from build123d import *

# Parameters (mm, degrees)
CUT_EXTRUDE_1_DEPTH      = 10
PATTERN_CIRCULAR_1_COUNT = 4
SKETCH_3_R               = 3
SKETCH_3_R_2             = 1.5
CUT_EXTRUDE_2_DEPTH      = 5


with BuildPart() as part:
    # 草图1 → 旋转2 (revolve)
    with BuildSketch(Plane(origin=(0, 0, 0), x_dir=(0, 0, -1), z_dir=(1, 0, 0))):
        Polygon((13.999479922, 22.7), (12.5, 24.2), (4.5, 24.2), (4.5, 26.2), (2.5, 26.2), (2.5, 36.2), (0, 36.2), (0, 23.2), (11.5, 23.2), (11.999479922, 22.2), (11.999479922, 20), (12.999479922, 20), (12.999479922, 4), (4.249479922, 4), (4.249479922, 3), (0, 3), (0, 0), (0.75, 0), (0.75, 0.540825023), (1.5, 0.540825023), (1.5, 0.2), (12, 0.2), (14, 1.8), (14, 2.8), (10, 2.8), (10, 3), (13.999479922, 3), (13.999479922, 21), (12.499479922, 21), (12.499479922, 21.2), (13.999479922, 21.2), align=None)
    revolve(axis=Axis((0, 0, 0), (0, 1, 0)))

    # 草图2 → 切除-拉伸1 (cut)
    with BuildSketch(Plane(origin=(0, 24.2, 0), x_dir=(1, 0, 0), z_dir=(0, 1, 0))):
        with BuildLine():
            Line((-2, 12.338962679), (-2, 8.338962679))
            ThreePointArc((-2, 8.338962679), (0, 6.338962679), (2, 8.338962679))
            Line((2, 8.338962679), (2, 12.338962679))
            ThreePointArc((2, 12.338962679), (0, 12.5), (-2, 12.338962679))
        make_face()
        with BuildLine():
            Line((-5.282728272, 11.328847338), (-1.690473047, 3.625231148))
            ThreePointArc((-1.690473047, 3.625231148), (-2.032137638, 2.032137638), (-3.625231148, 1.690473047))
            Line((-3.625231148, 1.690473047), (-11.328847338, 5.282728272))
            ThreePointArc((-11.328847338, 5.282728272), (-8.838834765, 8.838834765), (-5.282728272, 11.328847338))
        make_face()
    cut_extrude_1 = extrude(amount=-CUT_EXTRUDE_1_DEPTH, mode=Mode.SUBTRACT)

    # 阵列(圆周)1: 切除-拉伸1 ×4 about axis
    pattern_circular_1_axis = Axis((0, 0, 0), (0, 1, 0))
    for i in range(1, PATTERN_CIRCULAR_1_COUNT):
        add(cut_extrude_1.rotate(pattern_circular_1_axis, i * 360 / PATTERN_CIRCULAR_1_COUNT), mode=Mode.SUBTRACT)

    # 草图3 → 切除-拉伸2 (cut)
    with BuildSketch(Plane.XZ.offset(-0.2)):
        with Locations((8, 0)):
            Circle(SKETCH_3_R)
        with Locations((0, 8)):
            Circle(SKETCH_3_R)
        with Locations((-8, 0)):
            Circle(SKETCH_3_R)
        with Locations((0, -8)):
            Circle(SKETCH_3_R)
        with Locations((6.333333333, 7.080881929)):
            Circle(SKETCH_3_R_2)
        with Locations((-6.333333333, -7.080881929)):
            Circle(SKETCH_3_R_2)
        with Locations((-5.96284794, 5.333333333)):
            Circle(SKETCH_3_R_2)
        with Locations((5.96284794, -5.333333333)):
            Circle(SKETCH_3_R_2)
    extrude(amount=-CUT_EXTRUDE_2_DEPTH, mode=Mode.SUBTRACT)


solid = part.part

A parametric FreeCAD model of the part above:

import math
import FreeCAD as App
import Part
import Sketcher
Q = App.Units.Quantity

doc = App.newDocument("Part")
body = doc.addObject("PartDesign::Body", "Body")

sketch1 = body.newObject("Sketcher::SketchObject", "Sketch")
sketch1.AttachmentSupport = (doc.getObject("YZ_Plane"), [""])
sketch1.MapMode = "FlatFace"
sketch1.addGeometry([
    Part.LineSegment(App.Vector(22.7, -13.99948, 0), App.Vector(24.2, -12.5, 0)),
    Part.LineSegment(App.Vector(24.2, -12.5, 0), App.Vector(24.2, -4.5, 0)),
    Part.LineSegment(App.Vector(24.2, -4.5, 0), App.Vector(26.2, -4.5, 0)),
    Part.LineSegment(App.Vector(26.2, -4.5, 0), App.Vector(26.2, -2.5, 0)),
    Part.LineSegment(App.Vector(26.2, -2.5, 0), App.Vector(36.2, -2.5, 0)),
    Part.LineSegment(App.Vector(36.2, -2.5, 0), App.Vector(36.2, 0, 0)),
    Part.LineSegment(App.Vector(36.2, 0, 0), App.Vector(23.2, 0, 0)),
    Part.LineSegment(App.Vector(23.2, 0, 0), App.Vector(23.2, -11.5, 0)),
    Part.LineSegment(App.Vector(23.2, -11.5, 0), App.Vector(22.2, -11.99948, 0)),
    Part.LineSegment(App.Vector(22.2, -11.99948, 0), App.Vector(20, -11.99948, 0)),
    Part.LineSegment(App.Vector(20, -11.99948, 0), App.Vector(20, -12.99948, 0)),
    Part.LineSegment(App.Vector(20, -12.99948, 0), App.Vector(4, -12.99948, 0)),
    Part.LineSegment(App.Vector(4, -12.99948, 0), App.Vector(4, -4.24948, 0)),
    Part.LineSegment(App.Vector(4, -4.24948, 0), App.Vector(3, -4.24948, 0)),
    Part.LineSegment(App.Vector(3, -4.24948, 0), App.Vector(3, 0, 0)),
    Part.LineSegment(App.Vector(3, 0, 0), App.Vector(0, 0, 0)),
    Part.LineSegment(App.Vector(0, 0, 0), App.Vector(0, -0.75, 0)),
    Part.LineSegment(App.Vector(0, -0.75, 0), App.Vector(0.540825, -0.75, 0)),
    Part.LineSegment(App.Vector(0.540825, -0.75, 0), App.Vector(0.540825, -1.5, 0)),
    Part.LineSegment(App.Vector(0.540825, -1.5, 0), App.Vector(0.2, -1.5, 0)),
    Part.LineSegment(App.Vector(0.2, -1.5, 0), App.Vector(0.2, -12, 0)),
    Part.LineSegment(App.Vector(0.2, -12, 0), App.Vector(1.8, -14, 0)),
    Part.LineSegment(App.Vector(1.8, -14, 0), App.Vector(2.8, -14, 0)),
    Part.LineSegment(App.Vector(2.8, -14, 0), App.Vector(2.8, -10, 0)),
    Part.LineSegment(App.Vector(2.8, -10, 0), App.Vector(3, -10, 0)),
    Part.LineSegment(App.Vector(3, -10, 0), App.Vector(3, -13.99948, 0)),
    Part.LineSegment(App.Vector(3, -13.99948, 0), App.Vector(21, -13.99948, 0)),
    Part.LineSegment(App.Vector(21, -13.99948, 0), App.Vector(21, -12.49948, 0)),
    Part.LineSegment(App.Vector(21, -12.49948, 0), App.Vector(21.2, -12.49948, 0)),
    Part.LineSegment(App.Vector(21.2, -12.49948, 0), App.Vector(21.2, -13.99948, 0)),
    Part.LineSegment(App.Vector(21.2, -13.99948, 0), App.Vector(22.7, -13.99948, 0)),
], False)
sketch1.addConstraint([
    Sketcher.Constraint("Coincident", 0, 2, 1, 1),
    Sketcher.Constraint("Coincident", 1, 2, 2, 1),
    Sketcher.Constraint("Coincident", 2, 2, 3, 1),
    Sketcher.Constraint("Coincident", 3, 2, 4, 1),
    Sketcher.Constraint("Coincident", 4, 2, 5, 1),
    Sketcher.Constraint("Coincident", 5, 2, 6, 1),
    Sketcher.Constraint("Coincident", 6, 2, 7, 1),
    Sketcher.Constraint("Coincident", 7, 2, 8, 1),
    Sketcher.Constraint("Coincident", 8, 2, 9, 1),
    Sketcher.Constraint("Coincident", 9, 2, 10, 1),
    Sketcher.Constraint("Coincident", 10, 2, 11, 1),
    Sketcher.Constraint("Coincident", 11, 2, 12, 1),
    Sketcher.Constraint("Coincident", 12, 2, 13, 1),
    Sketcher.Constraint("Coincident", 13, 2, 14, 1),
    Sketcher.Constraint("Coincident", 14, 2, 15, 1),
    Sketcher.Constraint("Coincident", 15, 2, 16, 1),
    Sketcher.Constraint("Coincident", 16, 2, 17, 1),
    Sketcher.Constraint("Coincident", 17, 2, 18, 1),
    Sketcher.Constraint("Coincident", 18, 2, 19, 1),
    Sketcher.Constraint("Coincident", 19, 2, 20, 1),
    Sketcher.Constraint("Coincident", 20, 2, 21, 1),
    Sketcher.Constraint("Coincident", 21, 2, 22, 1),
    Sketcher.Constraint("Coincident", 22, 2, 23, 1),
    Sketcher.Constraint("Coincident", 23, 2, 24, 1),
    Sketcher.Constraint("Coincident", 24, 2, 25, 1),
    Sketcher.Constraint("Coincident", 25, 2, 26, 1),
    Sketcher.Constraint("Coincident", 26, 2, 27, 1),
    Sketcher.Constraint("Coincident", 27, 2, 28, 1),
    Sketcher.Constraint("Coincident", 28, 2, 29, 1),
    Sketcher.Constraint("Coincident", 29, 2, 30, 1),
    Sketcher.Constraint("Coincident", 30, 2, 0, 1),
    Sketcher.Constraint("Vertical", 1),
    Sketcher.Constraint("Horizontal", 2),
    Sketcher.Constraint("Vertical", 3),
    Sketcher.Constraint("Horizontal", 4),
    Sketcher.Constraint("Vertical", 5),
    Sketcher.Constraint("Horizontal", 6),
    Sketcher.Constraint("Vertical", 7),
    Sketcher.Constraint("Horizontal", 9),
    Sketcher.Constraint("Vertical", 10),
    Sketcher.Constraint("Horizontal", 11),
    Sketcher.Constraint("Vertical", 12),
    Sketcher.Constraint("Horizontal", 13),
    Sketcher.Constraint("Vertical", 14),
    Sketcher.Constraint("Horizontal", 15),
    Sketcher.Constraint("Vertical", 16),
    Sketcher.Constraint("Horizontal", 17),
    Sketcher.Constraint("Vertical", 18),
    Sketcher.Constraint("Horizontal", 19),
    Sketcher.Constraint("Vertical", 20),
    Sketcher.Constraint("Horizontal", 22),
    Sketcher.Constraint("Vertical", 23),
    Sketcher.Constraint("Horizontal", 24),
    Sketcher.Constraint("Vertical", 25),
    Sketcher.Constraint("Horizontal", 26),
    Sketcher.Constraint("Vertical", 27),
    Sketcher.Constraint("Horizontal", 28),
    Sketcher.Constraint("Vertical", 29),
    Sketcher.Constraint("Horizontal", 30),
    Sketcher.Constraint("Coincident", 15, 2, -1, 1),
    Sketcher.Constraint("PointOnObject", 5, 2, -1),
    Sketcher.Constraint("Horizontal", 26, 2, 29, 2),
    Sketcher.Constraint("Vertical", 14, 2, 24, 2),
    Sketcher.Constraint("Equal", 13, 22),
    Sketcher.Constraint("Equal", 24, 28),
    Sketcher.Constraint("Equal", 2, 3),
    Sketcher.Constraint("Equal", 22, 10),
    Sketcher.Constraint("Equal", 16, 18),
    Sketcher.Constraint("Equal", 30, 27),
    Sketcher.Constraint("DistanceX", 2, 1, 2, 2, Q("2 mm")),
    Sketcher.Constraint("DistanceX", 4, 1, 4, 2, Q("10 mm")),
    Sketcher.Constraint("DistanceX", 6, 2, 6, 1, Q("13 mm")),
    Sketcher.Constraint("DistanceX", 11, 2, 11, 1, Q("16 mm")),
    Sketcher.Constraint("DistanceX", 13, 2, 13, 1, Q("1 mm")),
    Sketcher.Constraint("DistanceX", 15, 2, 15, 1, Q("3 mm")),
    Sketcher.Constraint("DistanceX", 26, 1, 26, 2, Q("18 mm")),
    Sketcher.Constraint("DistanceY", 1, 1, 1, 2, Q("8 mm")),
    Sketcher.Constraint("DistanceY", 23, 1, 23, 2, Q("4 mm")),
    Sketcher.Constraint("DistanceX", 9, 2, 9, 1, Q("2.2 mm")),
    Sketcher.Constraint("DistanceX", 24, 1, 24, 2, Q("0.2 mm")),
    Sketcher.Constraint("DistanceX", 30, 1, 30, 2, Q("1.5 mm")),
    Sketcher.Constraint("DistanceY", 5, 1, 5, 2, Q("2.5 mm")),
    Sketcher.Constraint("DistanceY", 7, 2, 7, 1, Q("11.5 mm")),
    Sketcher.Constraint("DistanceY", 20, 2, 20, 1, Q("10.5 mm")),
    Sketcher.Constraint("DistanceY", 20, 2, -1, 1, Q("12 mm")),
    Sketcher.Constraint("DistanceY", 21, 2, -1, 1, Q("14 mm")),
    Sketcher.Constraint("DistanceX", 8, 2, 7, 2, Q("1 mm")),
    Sketcher.Constraint("DistanceY", 25, 2, 11, 2, Q("1 mm")),
    Sketcher.Constraint("DistanceY", 12, 1, 12, 2, Q("8.75 mm")),
    Sketcher.Constraint("DistanceX", -1, 1, 19, 2, Q("0.2 mm")),
    Sketcher.Constraint("Distance", 8, Q("1.117801 mm")),
    Sketcher.Constraint("DistanceX", 17, 1, 17, 2, Q("0.540825 mm")),
])
revolution = body.newObject("PartDesign::Revolution", "Revolution")
revolution.Profile = sketch1
revolution.ReferenceAxis = (sketch1, ["H_Axis"])
revolution.Angle = 360

sketch2 = body.newObject("Sketcher::SketchObject", "Sketch001")
sketch2.AttachmentSupport = (doc.getObject("XZ_Plane"), [""])
sketch2.MapMode = "FlatFace"
sketch2.AttachmentOffset = App.Placement(App.Vector(0, 0, -24.2), App.Rotation())
sketch2.addGeometry([
    Part.LineSegment(App.Vector(-2, -12.338963, 0), App.Vector(-2, -8.338963, 0)),
    Part.ArcOfCircle(Part.Circle(App.Vector(0, -8.338963, 0), App.Vector(0, 0, 1), 2), math.radians(0), math.radians(180)),
    Part.LineSegment(App.Vector(2, -8.338963, 0), App.Vector(2, -12.338963, 0)),
    Part.ArcOfCircle(Part.Circle(App.Vector(0, 0, 0), App.Vector(0, 0, 1), 12.5), math.radians(-99.206896), math.radians(-80.793104)),
    Part.LineSegment(App.Vector(-1.690473, -3.625231, 0), App.Vector(-5.282728, -11.328847, 0)),
    Part.ArcOfCircle(Part.Circle(App.Vector(0, 0, 0), App.Vector(0, 0, 1), 12.5), math.radians(-155), math.radians(-115)),
    Part.LineSegment(App.Vector(-11.328847, -5.282728, 0), App.Vector(-3.625231, -1.690473, 0)),
    Part.ArcOfCircle(Part.Circle(App.Vector(-3.092798, -3.092798, 0), App.Vector(0, 0, 1), 1.5), math.radians(-20.790721), math.radians(110.790721)),
], False)
sketch2.addConstraint([
    Sketcher.Constraint("Tangent", 0, 2, 1, 2),
    Sketcher.Constraint("Tangent", 1, 1, 2, 1),
    Sketcher.Constraint("Coincident", 2, 2, 3, 2),
    Sketcher.Constraint("Coincident", 3, 1, 0, 1),
    Sketcher.Constraint("Coincident", 4, 2, 5, 2),
    Sketcher.Constraint("Coincident", 5, 1, 6, 1),
    Sketcher.Constraint("Coincident", 6, 2, 7, 2),
    Sketcher.Constraint("Coincident", 7, 1, 4, 1),
    Sketcher.Constraint("Vertical", 0),
    Sketcher.Constraint("Vertical", 2),
    Sketcher.Constraint("Coincident", 3, 3, -1, 1),
    Sketcher.Constraint("Coincident", 5, 3, -1, 1),
    Sketcher.Constraint("Equal", 3, 5),
    Sketcher.Constraint("PointOnObject", 1, 3, -2),
    Sketcher.Constraint("Equal", 4, 6),
    Sketcher.Constraint("Radius", 1, Q("2 mm")),
    Sketcher.Constraint("Radius", 3, Q("12.5 mm")),
    Sketcher.Constraint("Radius", 7, Q("1.5 mm")),
    Sketcher.Constraint("DistanceY", 0, 1, 0, 2, Q("4 mm")),
    Sketcher.Constraint("Angle", 4, Q("-115 deg")),
    Sketcher.Constraint("Angle", 6, Q("25 deg")),
    Sketcher.Constraint("Distance", 4, Q("8.5 mm")),
    Sketcher.Constraint("DistanceX", 4, 2, -1, 1, Q("5.282728 mm")),
    Sketcher.Constraint("DistanceY", 5, 1, -1, 1, Q("5.282728 mm")),
])
pocket1 = body.newObject("PartDesign::Pocket", "Pocket")
pocket1.Profile = sketch2
pocket1.Length = 10
pocket1.Reversed = True
doc.recompute()

polarpattern = body.newObject("PartDesign::PolarPattern", "PolarPattern")
polarpattern.Originals = [pocket1]
polarpattern.Axis = (doc.getObject("Y_Axis"), [""])
polarpattern.Angle = 360
polarpattern.Occurrences = 4
body.Tip = polarpattern

sketch3 = body.newObject("Sketcher::SketchObject", "Sketch002")
sketch3.AttachmentSupport = (doc.getObject("XZ_Plane"), [""])
sketch3.MapMode = "FlatFace"
sketch3.AttachmentOffset = App.Placement(App.Vector(0, 0, -0.2), App.Rotation())
sketch3.addGeometry([
    Part.Circle(App.Vector(8, 0, 0), App.Vector(0, 0, 1), 3),
    Part.Circle(App.Vector(0, 8, 0), App.Vector(0, 0, 1), 3),
    Part.Circle(App.Vector(-8, 0, 0), App.Vector(0, 0, 1), 3),
    Part.Circle(App.Vector(0, -8, 0), App.Vector(0, 0, 1), 3),
    Part.Circle(App.Vector(6.333333, 7.080882, 0), App.Vector(0, 0, 1), 1.5),
    Part.Circle(App.Vector(-6.333333, -7.080882, 0), App.Vector(0, 0, 1), 1.5),
    Part.Circle(App.Vector(-5.962848, 5.333333, 0), App.Vector(0, 0, 1), 1.5),
    Part.Circle(App.Vector(5.962848, -5.333333, 0), App.Vector(0, 0, 1), 1.5),
], False)
sketch3.addConstraint([
    Sketcher.Constraint("Equal", 0, 1),
    Sketcher.Constraint("Equal", 1, 2),
    Sketcher.Constraint("Equal", 2, 3),
    Sketcher.Constraint("Equal", 4, 5),
    Sketcher.Constraint("Equal", 5, 6),
    Sketcher.Constraint("Equal", 6, 7),
    Sketcher.Constraint("Symmetric", 0, 3, 2, 3, -1, 1),
    Sketcher.Constraint("Symmetric", 1, 3, 3, 3, -1, 1),
    Sketcher.Constraint("Symmetric", 4, 3, 5, 3, -1, 1),
    Sketcher.Constraint("Symmetric", 6, 3, 7, 3, -1, 1),
    Sketcher.Constraint("PointOnObject", 0, 3, -1),
    Sketcher.Constraint("PointOnObject", 1, 3, -2),
    Sketcher.Constraint("Diameter", 0, Q("6 mm")),
    Sketcher.Constraint("Diameter", 4, Q("3 mm")),
    Sketcher.Constraint("DistanceX", -1, 1, 0, 3, Q("8 mm")),
    Sketcher.Constraint("DistanceY", -1, 1, 1, 3, Q("8 mm")),
    Sketcher.Constraint("DistanceY", -1, 1, 4, 3, Q("7.080882 mm")),
    Sketcher.Constraint("DistanceX", 6, 3, 4, 3, Q("12.296181 mm")),
    Sketcher.Constraint("DistanceY", 6, 3, 4, 3, Q("1.747549 mm")),
    Sketcher.Constraint("DistanceX", -1, 1, 4, 3, Q("6.333333 mm")),
])
pocket2 = body.newObject("PartDesign::Pocket", "Pocket001")
pocket2.Profile = sketch3
pocket2.Length = 5

doc.recompute()
